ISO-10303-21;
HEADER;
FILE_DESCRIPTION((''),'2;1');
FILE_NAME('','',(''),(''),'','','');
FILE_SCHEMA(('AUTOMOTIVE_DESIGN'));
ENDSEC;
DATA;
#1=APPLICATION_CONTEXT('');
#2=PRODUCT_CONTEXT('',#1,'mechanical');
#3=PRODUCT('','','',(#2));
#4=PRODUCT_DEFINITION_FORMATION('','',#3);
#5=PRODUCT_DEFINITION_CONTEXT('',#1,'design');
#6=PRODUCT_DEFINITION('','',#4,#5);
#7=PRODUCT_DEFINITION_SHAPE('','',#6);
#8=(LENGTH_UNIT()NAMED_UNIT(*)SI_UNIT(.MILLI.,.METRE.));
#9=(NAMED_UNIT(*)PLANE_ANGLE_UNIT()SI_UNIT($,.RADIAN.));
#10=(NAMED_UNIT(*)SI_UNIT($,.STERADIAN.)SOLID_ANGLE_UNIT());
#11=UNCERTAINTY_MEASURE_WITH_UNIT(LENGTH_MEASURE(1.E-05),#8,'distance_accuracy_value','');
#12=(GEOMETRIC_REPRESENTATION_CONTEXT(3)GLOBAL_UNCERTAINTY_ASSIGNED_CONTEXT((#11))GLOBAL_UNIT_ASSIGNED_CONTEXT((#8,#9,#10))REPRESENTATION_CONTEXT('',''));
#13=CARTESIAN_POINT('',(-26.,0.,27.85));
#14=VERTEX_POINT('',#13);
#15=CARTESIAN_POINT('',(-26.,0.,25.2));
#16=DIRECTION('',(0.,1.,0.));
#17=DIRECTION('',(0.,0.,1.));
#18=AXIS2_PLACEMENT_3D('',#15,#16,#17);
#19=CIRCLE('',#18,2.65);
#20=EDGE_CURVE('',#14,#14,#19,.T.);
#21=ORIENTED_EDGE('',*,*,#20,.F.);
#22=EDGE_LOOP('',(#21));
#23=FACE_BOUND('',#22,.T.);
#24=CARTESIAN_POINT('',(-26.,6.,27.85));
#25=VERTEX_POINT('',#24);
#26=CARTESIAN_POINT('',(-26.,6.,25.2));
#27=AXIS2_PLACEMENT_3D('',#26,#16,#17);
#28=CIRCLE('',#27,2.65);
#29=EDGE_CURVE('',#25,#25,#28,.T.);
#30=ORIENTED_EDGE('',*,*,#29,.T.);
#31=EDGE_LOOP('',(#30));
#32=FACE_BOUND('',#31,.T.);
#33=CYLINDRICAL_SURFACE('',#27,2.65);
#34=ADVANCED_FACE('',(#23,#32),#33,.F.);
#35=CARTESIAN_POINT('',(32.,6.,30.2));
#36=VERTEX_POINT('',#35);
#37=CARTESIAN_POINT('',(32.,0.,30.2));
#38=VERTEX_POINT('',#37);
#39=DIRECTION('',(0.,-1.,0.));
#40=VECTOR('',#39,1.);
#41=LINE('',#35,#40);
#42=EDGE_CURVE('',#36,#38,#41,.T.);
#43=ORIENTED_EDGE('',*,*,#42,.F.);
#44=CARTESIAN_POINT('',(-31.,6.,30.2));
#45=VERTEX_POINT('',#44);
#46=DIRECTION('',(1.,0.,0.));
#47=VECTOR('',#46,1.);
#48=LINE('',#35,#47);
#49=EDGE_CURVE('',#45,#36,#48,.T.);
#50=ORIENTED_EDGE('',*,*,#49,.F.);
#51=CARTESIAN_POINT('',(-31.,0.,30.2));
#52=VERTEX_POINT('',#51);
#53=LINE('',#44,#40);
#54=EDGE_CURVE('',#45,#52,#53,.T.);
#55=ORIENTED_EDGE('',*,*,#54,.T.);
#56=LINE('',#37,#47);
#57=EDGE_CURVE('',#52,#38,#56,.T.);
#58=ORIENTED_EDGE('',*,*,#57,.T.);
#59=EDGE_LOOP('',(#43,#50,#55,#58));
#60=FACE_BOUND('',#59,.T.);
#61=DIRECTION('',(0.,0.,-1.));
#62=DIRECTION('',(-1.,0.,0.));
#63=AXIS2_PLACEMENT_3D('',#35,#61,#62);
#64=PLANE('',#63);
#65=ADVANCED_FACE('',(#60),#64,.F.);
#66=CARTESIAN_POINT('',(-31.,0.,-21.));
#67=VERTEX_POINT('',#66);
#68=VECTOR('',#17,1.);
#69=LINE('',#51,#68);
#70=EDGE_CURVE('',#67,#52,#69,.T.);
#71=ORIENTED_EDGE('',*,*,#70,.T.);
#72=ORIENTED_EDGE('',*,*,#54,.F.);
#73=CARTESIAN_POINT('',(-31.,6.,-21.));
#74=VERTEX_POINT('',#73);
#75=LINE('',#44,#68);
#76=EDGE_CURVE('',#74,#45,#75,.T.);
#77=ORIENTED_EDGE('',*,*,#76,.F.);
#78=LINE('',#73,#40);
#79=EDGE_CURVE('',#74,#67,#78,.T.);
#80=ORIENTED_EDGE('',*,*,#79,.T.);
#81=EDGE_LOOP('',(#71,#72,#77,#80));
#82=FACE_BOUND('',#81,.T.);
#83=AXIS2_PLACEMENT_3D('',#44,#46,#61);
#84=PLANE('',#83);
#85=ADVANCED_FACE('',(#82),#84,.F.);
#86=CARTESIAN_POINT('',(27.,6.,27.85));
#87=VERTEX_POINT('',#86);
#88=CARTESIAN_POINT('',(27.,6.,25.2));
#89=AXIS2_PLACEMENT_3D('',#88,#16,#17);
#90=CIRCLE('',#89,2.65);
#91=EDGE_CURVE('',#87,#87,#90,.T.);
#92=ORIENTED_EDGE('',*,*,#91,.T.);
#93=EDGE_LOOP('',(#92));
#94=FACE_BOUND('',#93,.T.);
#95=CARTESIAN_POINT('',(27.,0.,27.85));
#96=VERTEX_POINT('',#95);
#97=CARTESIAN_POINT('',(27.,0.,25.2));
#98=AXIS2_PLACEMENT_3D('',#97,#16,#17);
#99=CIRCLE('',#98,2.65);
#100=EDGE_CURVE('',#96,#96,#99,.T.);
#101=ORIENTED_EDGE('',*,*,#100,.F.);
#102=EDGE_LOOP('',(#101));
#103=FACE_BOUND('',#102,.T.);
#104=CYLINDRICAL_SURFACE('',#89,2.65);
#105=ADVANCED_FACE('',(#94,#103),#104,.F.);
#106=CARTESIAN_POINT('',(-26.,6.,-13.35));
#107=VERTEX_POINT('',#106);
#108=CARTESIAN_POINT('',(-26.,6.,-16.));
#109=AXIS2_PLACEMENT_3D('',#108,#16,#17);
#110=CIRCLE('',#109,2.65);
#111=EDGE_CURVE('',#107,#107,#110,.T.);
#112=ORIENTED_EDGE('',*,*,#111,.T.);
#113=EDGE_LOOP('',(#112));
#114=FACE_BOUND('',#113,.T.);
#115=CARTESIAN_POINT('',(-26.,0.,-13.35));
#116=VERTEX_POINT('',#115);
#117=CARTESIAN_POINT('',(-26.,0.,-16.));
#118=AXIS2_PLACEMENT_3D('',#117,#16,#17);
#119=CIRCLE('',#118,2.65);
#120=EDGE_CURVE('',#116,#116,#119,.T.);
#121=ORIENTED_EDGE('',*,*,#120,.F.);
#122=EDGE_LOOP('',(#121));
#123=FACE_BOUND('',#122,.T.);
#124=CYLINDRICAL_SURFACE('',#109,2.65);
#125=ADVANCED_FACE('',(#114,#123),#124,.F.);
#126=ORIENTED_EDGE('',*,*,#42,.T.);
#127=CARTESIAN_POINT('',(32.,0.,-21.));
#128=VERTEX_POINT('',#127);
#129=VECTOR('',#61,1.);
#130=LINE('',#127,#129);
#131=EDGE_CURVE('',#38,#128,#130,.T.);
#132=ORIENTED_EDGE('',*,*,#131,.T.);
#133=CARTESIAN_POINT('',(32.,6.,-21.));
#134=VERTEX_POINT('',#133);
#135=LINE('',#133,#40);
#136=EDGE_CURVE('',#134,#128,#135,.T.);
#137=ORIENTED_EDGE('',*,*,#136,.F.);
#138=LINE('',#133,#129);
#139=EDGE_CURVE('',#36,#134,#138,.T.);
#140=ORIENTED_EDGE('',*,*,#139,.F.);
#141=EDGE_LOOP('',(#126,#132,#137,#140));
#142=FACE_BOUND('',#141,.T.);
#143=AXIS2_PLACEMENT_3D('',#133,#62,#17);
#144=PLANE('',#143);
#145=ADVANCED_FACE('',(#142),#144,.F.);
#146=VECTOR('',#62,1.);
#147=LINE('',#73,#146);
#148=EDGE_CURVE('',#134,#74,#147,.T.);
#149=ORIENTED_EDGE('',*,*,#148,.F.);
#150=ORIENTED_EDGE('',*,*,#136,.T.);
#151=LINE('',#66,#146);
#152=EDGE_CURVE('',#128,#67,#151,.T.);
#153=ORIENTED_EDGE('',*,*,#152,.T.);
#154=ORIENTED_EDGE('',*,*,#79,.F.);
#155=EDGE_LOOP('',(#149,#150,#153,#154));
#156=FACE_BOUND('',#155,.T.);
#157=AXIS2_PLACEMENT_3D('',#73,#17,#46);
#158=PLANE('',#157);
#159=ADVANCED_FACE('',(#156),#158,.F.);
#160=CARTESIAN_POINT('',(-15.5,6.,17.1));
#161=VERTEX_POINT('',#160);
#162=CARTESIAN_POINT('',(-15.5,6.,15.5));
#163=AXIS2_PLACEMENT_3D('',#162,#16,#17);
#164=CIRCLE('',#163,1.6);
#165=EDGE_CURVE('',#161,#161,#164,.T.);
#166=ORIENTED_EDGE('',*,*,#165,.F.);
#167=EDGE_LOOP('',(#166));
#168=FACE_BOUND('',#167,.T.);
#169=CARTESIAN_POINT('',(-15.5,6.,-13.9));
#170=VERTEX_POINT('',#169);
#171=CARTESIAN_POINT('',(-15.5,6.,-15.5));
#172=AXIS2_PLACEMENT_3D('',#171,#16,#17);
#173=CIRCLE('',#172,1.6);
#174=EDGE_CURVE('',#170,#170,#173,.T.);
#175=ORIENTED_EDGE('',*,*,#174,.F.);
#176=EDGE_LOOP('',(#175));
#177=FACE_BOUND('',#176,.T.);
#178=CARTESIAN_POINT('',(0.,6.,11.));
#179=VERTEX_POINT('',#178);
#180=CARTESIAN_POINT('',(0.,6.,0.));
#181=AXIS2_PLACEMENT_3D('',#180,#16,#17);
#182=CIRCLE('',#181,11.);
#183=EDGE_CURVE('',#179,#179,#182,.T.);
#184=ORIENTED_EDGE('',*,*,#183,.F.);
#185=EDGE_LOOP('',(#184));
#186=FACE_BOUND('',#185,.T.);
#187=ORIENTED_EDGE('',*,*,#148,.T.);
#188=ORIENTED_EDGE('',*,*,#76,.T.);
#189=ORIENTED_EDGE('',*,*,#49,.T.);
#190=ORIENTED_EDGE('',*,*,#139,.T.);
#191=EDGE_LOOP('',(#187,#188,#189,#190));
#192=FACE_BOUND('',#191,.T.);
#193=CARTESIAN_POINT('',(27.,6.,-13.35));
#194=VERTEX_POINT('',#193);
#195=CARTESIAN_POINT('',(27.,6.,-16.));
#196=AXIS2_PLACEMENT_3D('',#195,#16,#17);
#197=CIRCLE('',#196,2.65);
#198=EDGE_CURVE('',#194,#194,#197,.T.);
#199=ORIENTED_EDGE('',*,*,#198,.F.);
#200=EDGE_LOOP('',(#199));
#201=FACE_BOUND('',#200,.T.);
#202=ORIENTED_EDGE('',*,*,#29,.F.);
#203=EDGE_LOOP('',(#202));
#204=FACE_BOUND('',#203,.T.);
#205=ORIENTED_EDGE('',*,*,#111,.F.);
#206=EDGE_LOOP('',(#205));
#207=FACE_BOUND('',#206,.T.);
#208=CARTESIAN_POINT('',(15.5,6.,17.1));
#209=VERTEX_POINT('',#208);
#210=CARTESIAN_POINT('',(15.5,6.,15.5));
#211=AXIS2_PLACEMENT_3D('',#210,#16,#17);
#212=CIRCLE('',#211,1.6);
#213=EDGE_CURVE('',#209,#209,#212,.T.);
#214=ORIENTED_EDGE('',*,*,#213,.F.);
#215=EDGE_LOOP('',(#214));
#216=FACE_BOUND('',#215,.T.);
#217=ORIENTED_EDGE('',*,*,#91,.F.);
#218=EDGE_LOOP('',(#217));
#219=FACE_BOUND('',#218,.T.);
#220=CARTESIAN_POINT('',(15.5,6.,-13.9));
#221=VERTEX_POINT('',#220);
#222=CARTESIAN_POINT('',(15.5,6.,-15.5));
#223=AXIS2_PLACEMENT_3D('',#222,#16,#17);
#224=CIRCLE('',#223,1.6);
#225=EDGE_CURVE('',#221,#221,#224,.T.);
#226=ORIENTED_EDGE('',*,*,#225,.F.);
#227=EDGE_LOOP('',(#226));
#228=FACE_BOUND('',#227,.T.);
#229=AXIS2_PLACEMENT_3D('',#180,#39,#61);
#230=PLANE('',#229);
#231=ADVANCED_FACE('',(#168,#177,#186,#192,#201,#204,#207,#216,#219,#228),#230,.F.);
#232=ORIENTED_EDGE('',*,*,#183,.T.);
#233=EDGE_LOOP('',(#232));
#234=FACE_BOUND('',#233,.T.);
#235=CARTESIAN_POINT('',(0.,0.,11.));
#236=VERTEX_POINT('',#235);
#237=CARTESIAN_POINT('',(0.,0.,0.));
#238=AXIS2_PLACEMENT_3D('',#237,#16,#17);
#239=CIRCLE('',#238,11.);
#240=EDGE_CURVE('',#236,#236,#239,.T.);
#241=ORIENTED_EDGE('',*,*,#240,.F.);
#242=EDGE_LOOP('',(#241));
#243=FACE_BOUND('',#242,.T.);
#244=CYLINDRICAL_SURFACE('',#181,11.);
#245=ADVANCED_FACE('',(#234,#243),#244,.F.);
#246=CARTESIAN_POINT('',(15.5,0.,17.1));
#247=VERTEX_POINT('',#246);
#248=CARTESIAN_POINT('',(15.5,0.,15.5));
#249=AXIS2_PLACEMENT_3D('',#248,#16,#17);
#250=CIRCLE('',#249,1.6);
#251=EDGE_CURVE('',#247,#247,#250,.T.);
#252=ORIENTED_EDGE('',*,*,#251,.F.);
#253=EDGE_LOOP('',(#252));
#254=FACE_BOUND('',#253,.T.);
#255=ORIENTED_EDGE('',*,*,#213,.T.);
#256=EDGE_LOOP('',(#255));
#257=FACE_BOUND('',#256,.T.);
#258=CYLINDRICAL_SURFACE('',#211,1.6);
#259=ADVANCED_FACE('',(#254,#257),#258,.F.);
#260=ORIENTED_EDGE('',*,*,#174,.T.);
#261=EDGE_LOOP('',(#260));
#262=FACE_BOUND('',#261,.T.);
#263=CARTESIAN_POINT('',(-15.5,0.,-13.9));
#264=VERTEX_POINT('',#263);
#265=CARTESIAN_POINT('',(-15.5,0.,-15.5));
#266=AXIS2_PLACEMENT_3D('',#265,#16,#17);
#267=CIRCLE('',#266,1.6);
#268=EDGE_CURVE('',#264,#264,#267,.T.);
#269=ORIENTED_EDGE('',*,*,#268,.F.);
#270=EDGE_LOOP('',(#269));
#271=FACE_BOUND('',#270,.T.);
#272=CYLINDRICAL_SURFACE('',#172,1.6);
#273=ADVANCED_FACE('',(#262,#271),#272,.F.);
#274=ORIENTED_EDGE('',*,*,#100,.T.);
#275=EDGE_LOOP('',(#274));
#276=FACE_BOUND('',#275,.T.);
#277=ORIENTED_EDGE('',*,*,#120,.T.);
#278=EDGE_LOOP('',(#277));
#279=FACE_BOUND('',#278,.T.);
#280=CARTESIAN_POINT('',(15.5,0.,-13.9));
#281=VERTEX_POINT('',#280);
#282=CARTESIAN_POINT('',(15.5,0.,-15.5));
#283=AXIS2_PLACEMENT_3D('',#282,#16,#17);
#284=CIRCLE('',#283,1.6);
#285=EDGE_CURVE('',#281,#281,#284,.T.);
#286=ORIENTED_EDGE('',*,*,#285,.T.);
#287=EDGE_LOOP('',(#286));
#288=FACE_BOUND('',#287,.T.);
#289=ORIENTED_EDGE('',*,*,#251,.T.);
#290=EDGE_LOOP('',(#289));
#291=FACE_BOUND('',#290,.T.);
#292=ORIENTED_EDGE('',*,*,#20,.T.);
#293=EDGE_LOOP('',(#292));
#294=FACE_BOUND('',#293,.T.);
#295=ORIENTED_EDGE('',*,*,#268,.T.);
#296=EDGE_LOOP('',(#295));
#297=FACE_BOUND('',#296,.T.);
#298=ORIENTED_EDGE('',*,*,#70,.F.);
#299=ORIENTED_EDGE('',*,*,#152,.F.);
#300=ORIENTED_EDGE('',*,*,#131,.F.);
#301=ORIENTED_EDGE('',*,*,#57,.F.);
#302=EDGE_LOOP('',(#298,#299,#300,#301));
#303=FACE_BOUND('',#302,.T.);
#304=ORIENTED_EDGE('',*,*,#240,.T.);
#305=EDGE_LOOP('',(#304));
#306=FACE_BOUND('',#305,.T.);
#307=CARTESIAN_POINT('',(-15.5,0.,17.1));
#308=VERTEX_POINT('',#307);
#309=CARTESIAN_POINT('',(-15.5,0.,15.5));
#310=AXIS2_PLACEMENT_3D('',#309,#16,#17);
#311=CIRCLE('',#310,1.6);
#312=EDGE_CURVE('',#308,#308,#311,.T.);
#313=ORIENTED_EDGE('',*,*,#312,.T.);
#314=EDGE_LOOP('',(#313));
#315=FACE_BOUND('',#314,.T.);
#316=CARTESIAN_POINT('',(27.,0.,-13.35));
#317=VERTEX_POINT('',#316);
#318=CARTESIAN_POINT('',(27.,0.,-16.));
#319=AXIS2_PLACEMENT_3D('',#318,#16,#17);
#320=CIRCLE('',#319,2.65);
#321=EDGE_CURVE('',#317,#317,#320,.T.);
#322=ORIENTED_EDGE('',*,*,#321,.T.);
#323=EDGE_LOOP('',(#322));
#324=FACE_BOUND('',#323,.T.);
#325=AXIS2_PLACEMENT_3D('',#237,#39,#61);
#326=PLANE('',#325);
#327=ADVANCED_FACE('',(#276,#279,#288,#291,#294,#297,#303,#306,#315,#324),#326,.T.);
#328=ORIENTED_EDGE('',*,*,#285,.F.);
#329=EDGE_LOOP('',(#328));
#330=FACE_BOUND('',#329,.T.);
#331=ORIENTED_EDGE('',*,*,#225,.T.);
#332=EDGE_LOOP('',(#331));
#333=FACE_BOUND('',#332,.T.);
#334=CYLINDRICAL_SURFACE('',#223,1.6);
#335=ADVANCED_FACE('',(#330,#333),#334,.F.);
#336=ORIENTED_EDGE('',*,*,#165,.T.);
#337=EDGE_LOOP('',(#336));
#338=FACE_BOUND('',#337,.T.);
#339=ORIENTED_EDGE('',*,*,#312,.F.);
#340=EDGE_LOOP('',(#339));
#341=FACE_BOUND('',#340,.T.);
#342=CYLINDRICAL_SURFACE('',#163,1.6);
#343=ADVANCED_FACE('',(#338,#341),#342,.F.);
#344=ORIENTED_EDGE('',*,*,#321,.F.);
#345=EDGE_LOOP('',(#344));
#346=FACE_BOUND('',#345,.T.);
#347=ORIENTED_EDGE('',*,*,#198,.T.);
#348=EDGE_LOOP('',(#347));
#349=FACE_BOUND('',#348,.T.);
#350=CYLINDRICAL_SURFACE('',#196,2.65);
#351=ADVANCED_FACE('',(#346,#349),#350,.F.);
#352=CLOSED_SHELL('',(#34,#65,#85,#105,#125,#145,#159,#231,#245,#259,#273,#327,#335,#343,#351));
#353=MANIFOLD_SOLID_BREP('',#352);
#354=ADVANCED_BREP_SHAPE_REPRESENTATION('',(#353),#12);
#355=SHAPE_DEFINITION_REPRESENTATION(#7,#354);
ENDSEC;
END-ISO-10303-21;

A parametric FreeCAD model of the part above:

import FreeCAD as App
import Part
import Sketcher


def add_polygon(sketch, points):
    """Adds a closed chain of lines whose ends are joined by coincident constraints."""
    first, n = sketch.GeometryCount, len(points)
    for a, b in zip(points, points[1:] + points[:1]):
        sketch.addGeometry(Part.LineSegment(App.Vector(*a, 0), App.Vector(*b, 0)), False)
    for i in range(n):
        sketch.addConstraint(Sketcher.Constraint("Coincident", first + i, 2, first + (i + 1) % n, 1))

doc = App.newDocument("Part")
body = doc.addObject("PartDesign::Body", "Body")

# Sketch on XZ plane
sketch1 = body.newObject("Sketcher::SketchObject", "Sketch")
sketch1.AttachmentSupport = (doc.getObject("XZ_Plane"), [""])
sketch1.MapMode = "FlatFace"
add_polygon(sketch1, [(-31, -21), (-31, 30.2), (32, 30.2), (32, -21)])  # lines 0-3
sketch1.addConstraint(Sketcher.Constraint("Vertical", 0))
sketch1.addConstraint(Sketcher.Constraint("Horizontal", 1))
sketch1.addConstraint(Sketcher.Constraint("Vertical", 2))
sketch1.addConstraint(Sketcher.Constraint("Horizontal", 3))
sketch1.addConstraint(Sketcher.Constraint("DistanceX", 1, 1, 1, 2, 63.0))
sketch1.addConstraint(Sketcher.Constraint("DistanceY", 0, 1, 0, 2, 51.2))
sketch1.addConstraint(Sketcher.Constraint("DistanceX", 0, 2, -1, 1, 31.0))
sketch1.addConstraint(Sketcher.Constraint("DistanceY", 2, 2, -1, 1, 21.0))
pad1 = body.newObject("PartDesign::Pad", "Pad")
pad1.Profile = sketch1
pad1.Length = 6
pad1.Reversed = True

# Sketch on XZ plane
sketch2 = body.newObject("Sketcher::SketchObject", "Sketch001")
sketch2.AttachmentSupport = (doc.getObject("XZ_Plane"), [""])
sketch2.MapMode = "FlatFace"
sketch2.AttachmentOffset = App.Placement(App.Vector(0, 0, -6), App.Rotation())
sketch2.addGeometry(Part.Circle(App.Vector(-26, -16, 0), App.Vector(0, 0, 1), 2.65), False)
sketch2.addGeometry(Part.Circle(App.Vector(-26, 25.2, 0), App.Vector(0, 0, 1), 2.65), False)
sketch2.addGeometry(Part.Circle(App.Vector(27, 25.2, 0), App.Vector(0, 0, 1), 2.65), False)
sketch2.addGeometry(Part.Circle(App.Vector(27, -16, 0), App.Vector(0, 0, 1), 2.65), False)
sketch2.addConstraint(Sketcher.Constraint("Equal", 0, 1))
sketch2.addConstraint(Sketcher.Constraint("Equal", 1, 2))
sketch2.addConstraint(Sketcher.Constraint("Equal", 2, 3))
sketch2.addConstraint(Sketcher.Constraint("Horizontal", 1, 3, 2, 3))
sketch2.addConstraint(Sketcher.Constraint("Horizontal", 0, 3, 3, 3))
sketch2.addConstraint(Sketcher.Constraint("Vertical", 0, 3, 1, 3))
sketch2.addConstraint(Sketcher.Constraint("Vertical", 2, 3, 3, 3))
sketch2.addConstraint(Sketcher.Constraint("Diameter", 0, 5.3))
sketch2.addConstraint(Sketcher.Constraint("DistanceX", 0, 3, -1, 1, 26.0))
sketch2.addConstraint(Sketcher.Constraint("DistanceY", 0, 3, -1, 1, 16.0))
sketch2.addConstraint(Sketcher.Constraint("DistanceX", -1, 1, 2, 3, 27.0))
sketch2.addConstraint(Sketcher.Constraint("DistanceY", -1, 1, 1, 3, 25.2))
doc.recompute()
hole = body.newObject("PartDesign::Hole", "Hole")
hole.Profile = sketch2
hole.ThreadType = "None"
hole.Diameter = 5.3
hole.DepthType = "ThroughAll"
hole.Reversed = True

# Sketch on XZ plane
sketch3 = body.newObject("Sketcher::SketchObject", "Sketch002")
sketch3.AttachmentSupport = (doc.getObject("XZ_Plane"), [""])
sketch3.MapMode = "FlatFace"
sketch3.AttachmentOffset = App.Placement(App.Vector(0, 0, -6), App.Rotation())
sketch3.addGeometry(Part.Circle(App.Vector(-15.5, -15.5, 0), App.Vector(0, 0, 1), 1.6), False)
sketch3.addGeometry(Part.Circle(App.Vector(15.5, -15.5, 0), App.Vector(0, 0, 1), 1.6), False)
sketch3.addGeometry(Part.Circle(App.Vector(15.5, 15.5, 0), App.Vector(0, 0, 1), 1.6), False)
sketch3.addGeometry(Part.Circle(App.Vector(-15.5, 15.5, 0), App.Vector(0, 0, 1), 1.6), False)
sketch3.addConstraint(Sketcher.Constraint("Equal", 0, 1))
sketch3.addConstraint(Sketcher.Constraint("Equal", 1, 2))
sketch3.addConstraint(Sketcher.Constraint("Equal", 2, 3))
sketch3.addConstraint(Sketcher.Constraint("Symmetric", 0, 3, 2, 3, -1, 1))
sketch3.addConstraint(Sketcher.Constraint("Symmetric", 1, 3, 3, 3, -1, 1))
sketch3.addConstraint(Sketcher.Constraint("Symmetric", 0, 3, 1, 3, -2))
sketch3.addConstraint(Sketcher.Constraint("Diameter", 0, 3.2))
sketch3.addConstraint(Sketcher.Constraint("DistanceX", 0, 3, 1, 3, 31.0))
sketch3.addConstraint(Sketcher.Constraint("DistanceY", 1, 3, 2, 3, 31.0))
doc.recompute()
hole2 = body.newObject("PartDesign::Hole", "Hole001")
hole2.Profile = sketch3
hole2.ThreadType = "None"
hole2.Diameter = 3.2
hole2.DepthType = "ThroughAll"
hole2.Reversed = True

# Sketch on XZ plane
sketch4 = body.newObject("Sketcher::SketchObject", "Sketch003")
sketch4.AttachmentSupport = (doc.getObject("XZ_Plane"), [""])
sketch4.MapMode = "FlatFace"
sketch4.AttachmentOffset = App.Placement(App.Vector(0, 0, -6), App.Rotation())
sketch4.addGeometry(Part.Circle(App.Vector(0, 0, 0), App.Vector(0, 0, 1), 11), False)
sketch4.addConstraint(Sketcher.Constraint("Coincident", 0, 3, -1, 1))
sketch4.addConstraint(Sketcher.Constraint("Diameter", 0, 22.0))
doc.recompute()
hole3 = body.newObject("PartDesign::Hole", "Hole002")
hole3.Profile = sketch4
hole3.ThreadType = "None"
hole3.Diameter = 22
hole3.DepthType = "ThroughAll"
hole3.Reversed = True

doc.recompute()
